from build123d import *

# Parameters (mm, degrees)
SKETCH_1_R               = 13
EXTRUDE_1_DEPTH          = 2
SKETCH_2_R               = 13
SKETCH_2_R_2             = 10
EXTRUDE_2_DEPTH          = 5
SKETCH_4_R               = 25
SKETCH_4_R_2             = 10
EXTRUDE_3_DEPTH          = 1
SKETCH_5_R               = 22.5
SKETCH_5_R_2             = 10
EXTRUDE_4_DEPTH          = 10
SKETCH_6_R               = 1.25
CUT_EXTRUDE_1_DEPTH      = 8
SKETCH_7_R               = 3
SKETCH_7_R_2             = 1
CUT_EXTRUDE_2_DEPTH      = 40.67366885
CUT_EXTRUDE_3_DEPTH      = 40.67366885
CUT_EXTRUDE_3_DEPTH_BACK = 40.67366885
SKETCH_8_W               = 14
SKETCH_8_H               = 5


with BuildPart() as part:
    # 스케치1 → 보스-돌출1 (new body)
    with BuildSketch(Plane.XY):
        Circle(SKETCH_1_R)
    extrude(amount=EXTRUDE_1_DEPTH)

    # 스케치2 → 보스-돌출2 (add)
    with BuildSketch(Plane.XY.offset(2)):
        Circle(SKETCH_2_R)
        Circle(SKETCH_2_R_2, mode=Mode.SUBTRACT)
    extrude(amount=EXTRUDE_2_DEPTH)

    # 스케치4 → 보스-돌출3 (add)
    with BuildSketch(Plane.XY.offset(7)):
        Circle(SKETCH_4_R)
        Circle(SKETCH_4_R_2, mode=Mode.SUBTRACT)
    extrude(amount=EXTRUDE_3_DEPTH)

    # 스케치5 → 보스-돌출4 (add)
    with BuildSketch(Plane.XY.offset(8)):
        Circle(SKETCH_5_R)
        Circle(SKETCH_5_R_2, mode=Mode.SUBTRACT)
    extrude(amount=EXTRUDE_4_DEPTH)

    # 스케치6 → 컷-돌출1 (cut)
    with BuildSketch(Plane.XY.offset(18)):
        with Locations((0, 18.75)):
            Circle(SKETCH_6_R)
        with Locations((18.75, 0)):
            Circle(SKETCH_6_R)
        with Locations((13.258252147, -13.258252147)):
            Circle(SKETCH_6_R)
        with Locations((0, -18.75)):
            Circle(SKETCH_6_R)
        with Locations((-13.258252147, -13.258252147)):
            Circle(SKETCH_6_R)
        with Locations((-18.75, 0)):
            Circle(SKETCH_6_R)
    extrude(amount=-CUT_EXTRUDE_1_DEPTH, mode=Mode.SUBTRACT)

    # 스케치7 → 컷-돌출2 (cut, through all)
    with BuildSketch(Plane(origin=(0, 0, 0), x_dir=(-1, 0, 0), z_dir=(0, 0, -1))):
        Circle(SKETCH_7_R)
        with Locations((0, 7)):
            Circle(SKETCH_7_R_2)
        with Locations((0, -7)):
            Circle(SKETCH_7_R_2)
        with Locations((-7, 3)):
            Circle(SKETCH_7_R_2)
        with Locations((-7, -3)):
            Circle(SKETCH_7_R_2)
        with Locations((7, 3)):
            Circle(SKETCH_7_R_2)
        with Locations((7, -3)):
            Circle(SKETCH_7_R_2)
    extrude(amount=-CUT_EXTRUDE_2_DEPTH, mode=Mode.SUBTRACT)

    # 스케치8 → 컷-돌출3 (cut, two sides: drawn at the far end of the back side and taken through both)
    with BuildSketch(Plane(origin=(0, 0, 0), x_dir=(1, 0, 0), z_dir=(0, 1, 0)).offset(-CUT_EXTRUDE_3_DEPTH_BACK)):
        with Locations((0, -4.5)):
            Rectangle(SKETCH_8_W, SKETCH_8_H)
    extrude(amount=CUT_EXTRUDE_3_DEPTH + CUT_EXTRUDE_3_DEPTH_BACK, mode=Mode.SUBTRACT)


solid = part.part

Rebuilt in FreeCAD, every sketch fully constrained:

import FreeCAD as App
import Part
import Sketcher

V = App.Vector

doc = App.newDocument("Part")
body = doc.addObject("PartDesign::Body", "Body")

# Sketch on XY plane
sketch1 = body.newObject("Sketcher::SketchObject", "Sketch")
sketch1.AttachmentSupport = (doc.getObject("XY_Plane"), [""])
sketch1.MapMode = "FlatFace"
sketch1.addGeometry(Part.Circle(V(0, 0, 0), V(0, 0, 1), 13), False)
sketch1.addConstraint(Sketcher.Constraint("Coincident", 0, 3, -1, 1))
sketch1.addConstraint(Sketcher.Constraint("Diameter", 0, 26.0))
pad1 = body.newObject("PartDesign::Pad", "Pad")
pad1.Profile = sketch1
pad1.Length = 2

# Sketch on XY plane
sketch2 = body.newObject("Sketcher::SketchObject", "Sketch001")
sketch2.AttachmentSupport = (doc.getObject("XY_Plane"), [""])
sketch2.MapMode = "FlatFace"
sketch2.AttachmentOffset = App.Placement(V(0, 0, 2), App.Rotation())
sketch2.addGeometry(Part.Circle(V(0, 0, 0), V(0, 0, 1), 13), False)
sketch2.addGeometry(Part.Circle(V(0, 0, 0), V(0, 0, 1), 10), False)
sketch2.addConstraint(Sketcher.Constraint("Coincident", 0, 3, -1, 1))
sketch2.addConstraint(Sketcher.Constraint("Coincident", 1, 3, -1, 1))
sketch2.addConstraint(Sketcher.Constraint("Diameter", 0, 26.0))
sketch2.addConstraint(Sketcher.Constraint("Diameter", 1, 20.0))
pad2 = body.newObject("PartDesign::Pad", "Pad001")
pad2.Profile = sketch2
pad2.Length = 5

# Sketch on XY plane
sketch3 = body.newObject("Sketcher::SketchObject", "Sketch002")
sketch3.AttachmentSupport = (doc.getObject("XY_Plane"), [""])
sketch3.MapMode = "FlatFace"
sketch3.AttachmentOffset = App.Placement(V(0, 0, 7), App.Rotation())
sketch3.addGeometry(Part.Circle(V(0, 0, 0), V(0, 0, 1), 25), False)
sketch3.addGeometry(Part.Circle(V(0, 0, 0), V(0, 0, 1), 10), False)
sketch3.addConstraint(Sketcher.Constraint("Coincident", 0, 3, -1, 1))
sketch3.addConstraint(Sketcher.Constraint("Coincident", 1, 3, -1, 1))
sketch3.addConstraint(Sketcher.Constraint("Diameter", 0, 50.0))
sketch3.addConstraint(Sketcher.Constraint("Diameter", 1, 20.0))
pad3 = body.newObject("PartDesign::Pad", "Pad002")
pad3.Profile = sketch3
pad3.Length = 1

# Sketch on XY plane
sketch4 = body.newObject("Sketcher::SketchObject", "Sketch003")
sketch4.AttachmentSupport = (doc.getObject("XY_Plane"), [""])
sketch4.MapMode = "FlatFace"
sketch4.AttachmentOffset = App.Placement(V(0, 0, 8), App.Rotation())
sketch4.addGeometry(Part.Circle(V(0, 0, 0), V(0, 0, 1), 22), False)
sketch4.addGeometry(Part.Circle(V(0, 0, 0), V(0, 0, 1), 10), False)
sketch4.addConstraint(Sketcher.Constraint("Coincident", 0, 3, -1, 1))
sketch4.addConstraint(Sketcher.Constraint("Coincident", 1, 3, -1, 1))
sketch4.addConstraint(Sketcher.Constraint("Diameter", 0, 45.0))
sketch4.addConstraint(Sketcher.Constraint("Diameter", 1, 20.0))
pad4 = body.newObject("PartDesign::Pad", "Pad003")
pad4.Profile = sketch4
pad4.Length = 10

# Sketch on XY plane
sketch5 = body.newObject("Sketcher::SketchObject", "Sketch004")
sketch5.AttachmentSupport = (doc.getObject("XY_Plane"), [""])
sketch5.MapMode = "FlatFace"
sketch5.AttachmentOffset = App.Placement(V(0, 0, 18), App.Rotation())
sketch5.addGeometry(Part.Circle(V(0, 18.8, 0), V(0, 0, 1), 1.2), False)
sketch5.addGeometry(Part.Circle(V(18.8, 0, 0), V(0, 0, 1), 1.2), False)
sketch5.addGeometry(Part.Circle(V(13.3, -13.3, 0), V(0, 0, 1), 1.2), False)
sketch5.addGeometry(Part.Circle(V(0, -18.8, 0), V(0, 0, 1), 1.2), False)
sketch5.addGeometry(Part.Circle(V(-13.3, -13.3, 0), V(0, 0, 1), 1.2), False)
sketch5.addGeometry(Part.Circle(V(-18.8, 0, 0), V(0, 0, 1), 1.2), False)
sketch5.addConstraint(Sketcher.Constraint("Equal", 0, 1))
sketch5.addConstraint(Sketcher.Constraint("Equal", 1, 2))
sketch5.addConstraint(Sketcher.Constraint("Equal", 2, 3))
sketch5.addConstraint(Sketcher.Constraint("Equal", 3, 4))
sketch5.addConstraint(Sketcher.Constraint("Equal", 4, 5))
sketch5.addConstraint(Sketcher.Constraint("Symmetric", 0, 3, 3, 3, -1, 1))
sketch5.addConstraint(Sketcher.Constraint("Symmetric", 1, 3, 5, 3, -1, 1))
sketch5.addConstraint(Sketcher.Constraint("Symmetric", 2, 3, 4, 3, -2))
sketch5.addConstraint(Sketcher.Constraint("PointOnObject", 0, 3, -2))
sketch5.addConstraint(Sketcher.Constraint("PointOnObject", 1, 3, -1))
sketch5.addConstraint(Sketcher.Constraint("Diameter", 0, 2.5))
sketch5.addConstraint(Sketcher.Constraint("DistanceY", 3, 3, 0, 3, 37.5))
sketch5.addConstraint(Sketcher.Constraint("DistanceX", 5, 3, 1, 3, 37.5))
sketch5.addConstraint(Sketcher.Constraint("DistanceX", -1, 1, 2, 3, 13.258252))
sketch5.addConstraint(Sketcher.Constraint("DistanceY", 2, 3, -1, 1, 13.258252))
pocket1 = body.newObject("PartDesign::Pocket", "Pocket")
pocket1.Profile = sketch5
pocket1.Length = 8

# Sketch on XY plane
sketch6 = body.newObject("Sketcher::SketchObject", "Sketch005")
sketch6.AttachmentSupport = (doc.getObject("XY_Plane"), [""])
sketch6.MapMode = "FlatFace"
sketch6.addGeometry(Part.Circle(V(0, 0, 0), V(0, 0, 1), 3), False)
sketch6.addGeometry(Part.Circle(V(0, 7, 0), V(0, 0, 1), 1), False)
sketch6.addGeometry(Part.Circle(V(0, -7, 0), V(0, 0, 1), 1), False)
sketch6.addGeometry(Part.Circle(V(7, 3, 0), V(0, 0, 1), 1), False)
sketch6.addGeometry(Part.Circle(V(7, -3, 0), V(0, 0, 1), 1), False)
sketch6.addGeometry(Part.Circle(V(-7, 3, 0), V(0, 0, 1), 1), False)
sketch6.addGeometry(Part.Circle(V(-7, -3, 0), V(0, 0, 1), 1), False)
sketch6.addConstraint(Sketcher.Constraint("Coincident", 0, 3, -1, 1))
sketch6.addConstraint(Sketcher.Constraint("Equal", 1, 2))
sketch6.addConstraint(Sketcher.Constraint("Equal", 2, 3))
sketch6.addConstraint(Sketcher.Constraint("Equal", 3, 4))
sketch6.addConstraint(Sketcher.Constraint("Equal", 4, 5))
sketch6.addConstraint(Sketcher.Constraint("Equal", 5, 6))
sketch6.addConstraint(Sketcher.Constraint("Symmetric", 1, 3, 2, 3, -1, 1))
sketch6.addConstraint(Sketcher.Constraint("Symmetric", 4, 3, 5, 3, -1, 1))
sketch6.addConstraint(Sketcher.Constraint("Symmetric", 3, 3, 6, 3, -1, 1))
sketch6.addConstraint(Sketcher.Constraint("Symmetric", 3, 3, 5, 3, -2))
sketch6.addConstraint(Sketcher.Constraint("PointOnObject", 1, 3, -2))
sketch6.addConstraint(Sketcher.Constraint("Diameter", 0, 6.0))
sketch6.addConstraint(Sketcher.Constraint("Diameter", 1, 2.0))
sketch6.addConstraint(Sketcher.Constraint("DistanceY", -1, 1, 1, 3, 7.0))
sketch6.addConstraint(Sketcher.Constraint("DistanceX", -1, 1, 3, 3, 7.0))
sketch6.addConstraint(Sketcher.Constraint("DistanceY", -1, 1, 3, 3, 3.0))
pocket2 = body.newObject("PartDesign::Pocket", "Pocket001")
pocket2.Profile = sketch6
pocket2.Type = "ThroughAll"
pocket2.Reversed = True

# Sketch on XZ plane
sketch7 = body.newObject("Sketcher::SketchObject", "Sketch006")
sketch7.AttachmentSupport = (doc.getObject("XZ_Plane"), [""])
sketch7.MapMode = "FlatFace"
sketch7.addGeometry(Part.LineSegment(V(-7, 2, 0), V(-7, 7, 0)), False)
sketch7.addGeometry(Part.LineSegment(V(-7, 7, 0), V(7, 7, 0)), False)
sketch7.addGeometry(Part.LineSegment(V(7, 7, 0), V(7, 2, 0)), False)
sketch7.addGeometry(Part.LineSegment(V(7, 2, 0), V(-7, 2, 0)), False)
sketch7.addConstraint(Sketcher.Constraint("Coincident", 0, 2, 1, 1))
sketch7.addConstraint(Sketcher.Constraint("Coincident", 1, 2, 2, 1))
sketch7.addConstraint(Sketcher.Constraint("Coincident", 2, 2, 3, 1))
sketch7.addConstraint(Sketcher.Constraint("Coincident", 3, 2, 0, 1))
sketch7.addConstraint(Sketcher.Constraint("Vertical", 0))
sketch7.addConstraint(Sketcher.Constraint("Horizontal", 1))
sketch7.addConstraint(Sketcher.Constraint("Vertical", 2))
sketch7.addConstraint(Sketcher.Constraint("Horizontal", 3))
sketch7.addConstraint(Sketcher.Constraint("DistanceX", 1, 1, 1, 2, 14.0))
sketch7.addConstraint(Sketcher.Constraint("DistanceY", 0, 1, 0, 2, 5.0))
sketch7.addConstraint(Sketcher.Constraint("DistanceX", 0, 2, -1, 1, 7.0))
sketch7.addConstraint(Sketcher.Constraint("DistanceY", -1, 1, 0, 2, 7.0))
pocket3 = body.newObject("PartDesign::Pocket", "Pocket002")
pocket3.Profile = sketch7
pocket3.Type = "ThroughAll"
pocket3.Midplane = True

doc.recompute()
